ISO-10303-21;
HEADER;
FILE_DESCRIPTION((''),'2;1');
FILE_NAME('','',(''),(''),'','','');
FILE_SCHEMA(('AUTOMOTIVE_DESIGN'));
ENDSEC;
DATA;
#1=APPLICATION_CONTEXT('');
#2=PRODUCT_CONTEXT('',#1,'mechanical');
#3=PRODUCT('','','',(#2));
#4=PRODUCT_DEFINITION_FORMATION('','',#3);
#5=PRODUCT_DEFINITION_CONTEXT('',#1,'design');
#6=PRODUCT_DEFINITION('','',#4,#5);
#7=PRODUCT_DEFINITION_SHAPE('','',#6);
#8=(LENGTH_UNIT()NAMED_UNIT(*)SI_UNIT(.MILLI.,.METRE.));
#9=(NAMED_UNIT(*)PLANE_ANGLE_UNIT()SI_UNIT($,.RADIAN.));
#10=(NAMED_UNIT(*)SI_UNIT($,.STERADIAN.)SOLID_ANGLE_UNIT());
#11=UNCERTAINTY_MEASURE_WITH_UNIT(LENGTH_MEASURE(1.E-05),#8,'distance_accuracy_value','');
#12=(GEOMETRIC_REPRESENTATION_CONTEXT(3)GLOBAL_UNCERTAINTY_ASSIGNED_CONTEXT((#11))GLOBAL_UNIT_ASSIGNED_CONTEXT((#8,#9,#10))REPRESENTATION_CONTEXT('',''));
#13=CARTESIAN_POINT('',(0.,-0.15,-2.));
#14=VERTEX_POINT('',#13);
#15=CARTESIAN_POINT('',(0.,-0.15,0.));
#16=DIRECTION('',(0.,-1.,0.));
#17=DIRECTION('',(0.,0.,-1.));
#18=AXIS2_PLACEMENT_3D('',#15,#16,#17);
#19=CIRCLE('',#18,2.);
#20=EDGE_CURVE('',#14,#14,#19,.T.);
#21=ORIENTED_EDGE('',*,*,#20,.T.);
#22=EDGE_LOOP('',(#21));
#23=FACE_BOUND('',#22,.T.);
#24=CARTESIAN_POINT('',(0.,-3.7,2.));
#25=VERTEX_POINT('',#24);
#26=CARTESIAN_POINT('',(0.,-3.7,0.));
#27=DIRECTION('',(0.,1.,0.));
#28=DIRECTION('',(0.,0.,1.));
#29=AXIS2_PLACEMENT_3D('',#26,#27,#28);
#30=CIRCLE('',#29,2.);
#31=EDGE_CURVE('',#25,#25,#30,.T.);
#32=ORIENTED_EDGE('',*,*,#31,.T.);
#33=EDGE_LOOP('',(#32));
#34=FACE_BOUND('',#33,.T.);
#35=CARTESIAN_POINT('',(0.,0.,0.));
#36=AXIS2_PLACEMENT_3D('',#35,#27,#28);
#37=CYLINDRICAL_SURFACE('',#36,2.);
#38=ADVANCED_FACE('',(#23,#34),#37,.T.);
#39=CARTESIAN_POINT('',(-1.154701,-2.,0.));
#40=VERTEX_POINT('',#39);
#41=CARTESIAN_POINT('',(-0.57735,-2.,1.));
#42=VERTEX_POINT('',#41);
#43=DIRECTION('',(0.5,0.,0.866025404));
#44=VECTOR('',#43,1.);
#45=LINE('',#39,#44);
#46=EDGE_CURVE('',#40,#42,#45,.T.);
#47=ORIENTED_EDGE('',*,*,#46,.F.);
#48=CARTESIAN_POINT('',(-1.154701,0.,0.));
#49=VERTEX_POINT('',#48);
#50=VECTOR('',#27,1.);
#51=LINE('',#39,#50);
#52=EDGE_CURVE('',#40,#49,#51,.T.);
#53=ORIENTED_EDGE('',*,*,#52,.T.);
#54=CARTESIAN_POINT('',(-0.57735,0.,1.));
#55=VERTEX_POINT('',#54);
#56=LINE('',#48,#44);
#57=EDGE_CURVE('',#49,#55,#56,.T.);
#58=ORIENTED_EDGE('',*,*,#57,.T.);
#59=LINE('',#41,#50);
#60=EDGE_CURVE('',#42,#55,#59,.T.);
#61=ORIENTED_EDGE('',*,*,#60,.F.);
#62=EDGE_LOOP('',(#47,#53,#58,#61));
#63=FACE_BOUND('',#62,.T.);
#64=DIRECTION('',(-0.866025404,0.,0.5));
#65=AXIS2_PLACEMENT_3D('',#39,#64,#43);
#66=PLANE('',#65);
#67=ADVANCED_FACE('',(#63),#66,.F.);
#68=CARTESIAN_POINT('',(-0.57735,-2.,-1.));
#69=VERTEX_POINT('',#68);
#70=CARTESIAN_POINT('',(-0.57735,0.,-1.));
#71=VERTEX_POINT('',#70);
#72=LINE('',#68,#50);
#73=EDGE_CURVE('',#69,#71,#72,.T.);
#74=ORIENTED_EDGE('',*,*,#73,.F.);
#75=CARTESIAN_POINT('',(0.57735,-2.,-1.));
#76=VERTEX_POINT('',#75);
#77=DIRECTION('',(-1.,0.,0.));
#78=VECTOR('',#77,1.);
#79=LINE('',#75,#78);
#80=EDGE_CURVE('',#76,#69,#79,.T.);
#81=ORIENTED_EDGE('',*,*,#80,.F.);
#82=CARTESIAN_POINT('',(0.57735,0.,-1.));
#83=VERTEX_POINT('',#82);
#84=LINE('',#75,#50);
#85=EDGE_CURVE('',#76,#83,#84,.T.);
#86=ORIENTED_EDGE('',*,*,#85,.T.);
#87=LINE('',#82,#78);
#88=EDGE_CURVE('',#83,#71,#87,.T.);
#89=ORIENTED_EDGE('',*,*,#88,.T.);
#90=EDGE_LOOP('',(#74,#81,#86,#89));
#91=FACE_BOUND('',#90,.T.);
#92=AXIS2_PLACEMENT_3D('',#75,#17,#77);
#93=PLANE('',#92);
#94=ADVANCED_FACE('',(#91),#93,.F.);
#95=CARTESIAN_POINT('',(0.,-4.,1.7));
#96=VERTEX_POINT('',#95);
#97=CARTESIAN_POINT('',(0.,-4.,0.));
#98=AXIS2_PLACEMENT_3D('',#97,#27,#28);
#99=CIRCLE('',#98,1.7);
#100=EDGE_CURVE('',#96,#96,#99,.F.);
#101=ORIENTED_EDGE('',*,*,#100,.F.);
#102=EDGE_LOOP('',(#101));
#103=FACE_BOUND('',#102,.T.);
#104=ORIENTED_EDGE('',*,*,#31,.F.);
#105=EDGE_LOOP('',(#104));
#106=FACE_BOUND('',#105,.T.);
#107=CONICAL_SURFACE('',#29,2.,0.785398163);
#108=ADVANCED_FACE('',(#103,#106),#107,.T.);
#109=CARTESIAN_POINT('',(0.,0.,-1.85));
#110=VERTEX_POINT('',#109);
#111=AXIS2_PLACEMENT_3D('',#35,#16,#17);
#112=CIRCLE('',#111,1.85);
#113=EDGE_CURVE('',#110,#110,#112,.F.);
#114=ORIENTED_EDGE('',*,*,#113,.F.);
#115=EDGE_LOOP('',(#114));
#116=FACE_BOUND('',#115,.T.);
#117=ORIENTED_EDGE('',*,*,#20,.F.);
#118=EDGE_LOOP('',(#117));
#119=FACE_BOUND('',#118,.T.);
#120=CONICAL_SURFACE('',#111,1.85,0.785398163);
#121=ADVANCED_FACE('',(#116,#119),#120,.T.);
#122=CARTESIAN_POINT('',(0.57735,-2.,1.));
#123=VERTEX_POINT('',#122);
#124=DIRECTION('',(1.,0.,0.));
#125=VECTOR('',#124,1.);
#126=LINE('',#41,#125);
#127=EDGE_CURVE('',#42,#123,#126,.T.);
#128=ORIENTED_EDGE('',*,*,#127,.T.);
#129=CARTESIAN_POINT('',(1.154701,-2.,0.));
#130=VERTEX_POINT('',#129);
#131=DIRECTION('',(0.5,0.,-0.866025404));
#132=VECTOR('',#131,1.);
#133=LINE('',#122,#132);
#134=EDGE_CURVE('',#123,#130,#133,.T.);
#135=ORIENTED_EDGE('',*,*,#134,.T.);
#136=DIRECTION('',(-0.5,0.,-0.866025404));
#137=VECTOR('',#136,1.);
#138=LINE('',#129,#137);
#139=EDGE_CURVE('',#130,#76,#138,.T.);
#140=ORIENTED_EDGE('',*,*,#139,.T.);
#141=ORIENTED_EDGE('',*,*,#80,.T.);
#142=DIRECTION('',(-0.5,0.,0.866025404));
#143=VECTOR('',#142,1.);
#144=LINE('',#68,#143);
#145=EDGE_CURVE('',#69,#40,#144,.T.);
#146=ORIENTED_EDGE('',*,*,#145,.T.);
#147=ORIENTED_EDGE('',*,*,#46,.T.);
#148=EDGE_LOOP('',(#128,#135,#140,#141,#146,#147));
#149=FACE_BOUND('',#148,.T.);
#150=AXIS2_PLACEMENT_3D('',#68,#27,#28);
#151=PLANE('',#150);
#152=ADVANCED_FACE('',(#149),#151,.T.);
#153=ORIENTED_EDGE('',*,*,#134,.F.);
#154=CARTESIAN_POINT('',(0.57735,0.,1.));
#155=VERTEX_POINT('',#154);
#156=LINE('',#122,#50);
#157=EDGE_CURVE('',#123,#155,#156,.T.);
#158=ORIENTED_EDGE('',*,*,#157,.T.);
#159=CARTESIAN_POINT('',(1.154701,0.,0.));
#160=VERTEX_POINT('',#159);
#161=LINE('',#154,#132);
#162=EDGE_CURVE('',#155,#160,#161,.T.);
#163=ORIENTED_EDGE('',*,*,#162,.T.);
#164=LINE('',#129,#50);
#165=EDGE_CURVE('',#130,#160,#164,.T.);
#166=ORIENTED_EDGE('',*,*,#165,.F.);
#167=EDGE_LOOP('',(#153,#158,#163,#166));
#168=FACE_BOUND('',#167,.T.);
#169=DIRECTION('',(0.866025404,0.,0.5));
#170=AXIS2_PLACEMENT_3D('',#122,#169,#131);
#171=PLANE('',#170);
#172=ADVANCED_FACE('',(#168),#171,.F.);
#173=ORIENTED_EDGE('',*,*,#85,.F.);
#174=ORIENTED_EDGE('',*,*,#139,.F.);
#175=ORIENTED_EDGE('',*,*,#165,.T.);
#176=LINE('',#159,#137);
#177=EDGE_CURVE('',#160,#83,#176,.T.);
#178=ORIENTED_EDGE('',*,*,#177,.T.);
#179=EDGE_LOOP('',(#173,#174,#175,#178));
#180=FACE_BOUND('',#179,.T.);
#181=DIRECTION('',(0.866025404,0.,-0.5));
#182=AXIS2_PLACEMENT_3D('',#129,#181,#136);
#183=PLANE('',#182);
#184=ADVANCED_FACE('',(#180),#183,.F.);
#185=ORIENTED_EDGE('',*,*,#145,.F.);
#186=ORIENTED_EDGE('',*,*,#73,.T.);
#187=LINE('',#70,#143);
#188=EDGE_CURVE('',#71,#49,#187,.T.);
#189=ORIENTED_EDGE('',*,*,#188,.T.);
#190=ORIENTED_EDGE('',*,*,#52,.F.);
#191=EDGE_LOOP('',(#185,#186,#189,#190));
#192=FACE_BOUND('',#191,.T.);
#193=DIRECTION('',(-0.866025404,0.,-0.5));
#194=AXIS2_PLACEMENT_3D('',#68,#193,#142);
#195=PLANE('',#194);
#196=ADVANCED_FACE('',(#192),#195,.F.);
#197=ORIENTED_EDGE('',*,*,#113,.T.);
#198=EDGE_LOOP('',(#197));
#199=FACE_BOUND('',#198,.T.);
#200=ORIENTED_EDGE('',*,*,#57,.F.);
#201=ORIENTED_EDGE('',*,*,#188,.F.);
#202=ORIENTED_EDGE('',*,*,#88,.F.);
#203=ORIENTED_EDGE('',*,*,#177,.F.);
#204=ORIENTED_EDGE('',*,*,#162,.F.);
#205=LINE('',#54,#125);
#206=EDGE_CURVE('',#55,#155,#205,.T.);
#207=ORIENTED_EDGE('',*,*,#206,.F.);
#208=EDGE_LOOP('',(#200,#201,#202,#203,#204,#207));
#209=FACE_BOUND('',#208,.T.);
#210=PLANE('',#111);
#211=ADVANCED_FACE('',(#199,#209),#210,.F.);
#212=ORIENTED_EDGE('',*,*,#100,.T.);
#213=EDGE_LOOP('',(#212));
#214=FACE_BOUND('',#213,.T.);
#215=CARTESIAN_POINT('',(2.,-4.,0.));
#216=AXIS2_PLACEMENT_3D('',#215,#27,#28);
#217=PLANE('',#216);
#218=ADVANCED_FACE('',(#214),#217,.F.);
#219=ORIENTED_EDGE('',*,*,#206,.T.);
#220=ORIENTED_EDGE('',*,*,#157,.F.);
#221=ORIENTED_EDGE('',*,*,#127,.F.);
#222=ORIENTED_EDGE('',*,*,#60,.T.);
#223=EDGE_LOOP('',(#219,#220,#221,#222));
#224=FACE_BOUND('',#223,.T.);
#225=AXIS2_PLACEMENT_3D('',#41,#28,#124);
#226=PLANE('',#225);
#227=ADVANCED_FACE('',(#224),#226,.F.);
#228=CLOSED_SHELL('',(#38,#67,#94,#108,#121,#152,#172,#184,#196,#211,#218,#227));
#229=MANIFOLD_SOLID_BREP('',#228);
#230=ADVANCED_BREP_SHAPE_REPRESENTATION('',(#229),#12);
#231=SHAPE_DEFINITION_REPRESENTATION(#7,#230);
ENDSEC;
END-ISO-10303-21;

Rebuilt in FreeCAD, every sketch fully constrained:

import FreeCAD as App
import Part
import Sketcher

V = App.Vector
Q = App.Units.Quantity


def edges_at(feature, points):
    """Names of the edges that pass closest to the given points."""
    edges = feature.Shape.Edges
    near = lambda p: min(range(len(edges)), key=lambda i: edges[i].distToShape(Part.Vertex(*p))[0])
    return sorted({f"Edge{near(p) + 1}" for p in points})

doc = App.newDocument("Part")
body = doc.addObject("PartDesign::Body", "Body")

sketch1 = doc.addObject("Sketcher::SketchObject", "Sketch")
body.addObject(sketch1)
sketch1.AttachmentSupport = (doc.XY_Plane, [""])
sketch1.MapMode = "FlatFace"
sketch1.addGeometry(Part.LineSegment(V(0, 0, 0), V(0, -4, 0)), False)
sketch1.addGeometry(Part.LineSegment(V(0, -4, 0), V(2, -4, 0)), False)
sketch1.addGeometry(Part.LineSegment(V(2, -4, 0), V(2, 0, 0)), False)
sketch1.addGeometry(Part.LineSegment(V(2, 0, 0), V(0, 0, 0)), False)
sketch1.addConstraint(Sketcher.Constraint("Coincident", 0, 2, 1, 1))
sketch1.addConstraint(Sketcher.Constraint("Coincident", 1, 2, 2, 1))
sketch1.addConstraint(Sketcher.Constraint("Coincident", 2, 2, 3, 1))
sketch1.addConstraint(Sketcher.Constraint("Coincident", 3, 2, 0, 1))
sketch1.addConstraint(Sketcher.Constraint("Vertical", 0))
sketch1.addConstraint(Sketcher.Constraint("Horizontal", 1))
sketch1.addConstraint(Sketcher.Constraint("Vertical", 2))
sketch1.addConstraint(Sketcher.Constraint("Horizontal", 3))
sketch1.addConstraint(Sketcher.Constraint("Coincident", 3, 2, -1, 1))
sketch1.addConstraint(Sketcher.Constraint("DistanceX", 1, 1, 1, 2, 2.0))
sketch1.addConstraint(Sketcher.Constraint("DistanceY", 0, 2, 0, 1, 4.0))
revolution = doc.addObject("PartDesign::Revolution", "Revolution")
body.addObject(revolution)
revolution.Profile = sketch1
revolution.ReferenceAxis = (sketch1, ["V_Axis"])
revolution.Angle = 360

sketch2 = doc.addObject("Sketcher::SketchObject", "Sketch001")
body.addObject(sketch2)
sketch2.AttachmentSupport = (doc.XZ_Plane, [""])
sketch2.MapMode = "FlatFace"
sketch2.addGeometry(Part.LineSegment(V(-0.6, -1, 0), V(-1.2, 0, 0)), False)
sketch2.addGeometry(Part.LineSegment(V(-1.2, 0, 0), V(-0.6, 1, 0)), False)
sketch2.addGeometry(Part.LineSegment(V(-0.6, 1, 0), V(0.6, 1, 0)), False)
sketch2.addGeometry(Part.LineSegment(V(0.6, 1, 0), V(1.2, 0, 0)), False)
sketch2.addGeometry(Part.LineSegment(V(1.2, 0, 0), V(0.6, -1, 0)), False)
sketch2.addGeometry(Part.LineSegment(V(0.6, -1, 0), V(-0.6, -1, 0)), False)
sketch2.addConstraint(Sketcher.Constraint("Coincident", 0, 2, 1, 1))
sketch2.addConstraint(Sketcher.Constraint("Coincident", 1, 2, 2, 1))
sketch2.addConstraint(Sketcher.Constraint("Coincident", 2, 2, 3, 1))
sketch2.addConstraint(Sketcher.Constraint("Coincident", 3, 2, 4, 1))
sketch2.addConstraint(Sketcher.Constraint("Coincident", 4, 2, 5, 1))
sketch2.addConstraint(Sketcher.Constraint("Coincident", 5, 2, 0, 1))
sketch2.addConstraint(Sketcher.Constraint("Horizontal", 2))
sketch2.addConstraint(Sketcher.Constraint("Horizontal", 5))
sketch2.addConstraint(Sketcher.Constraint("Symmetric", 0, 2, 3, 2, -1, 1))
sketch2.addConstraint(Sketcher.Constraint("Symmetric", 1, 2, 4, 2, -1, 1))
sketch2.addConstraint(Sketcher.Constraint("PointOnObject", 0, 2, -1))
sketch2.addConstraint(Sketcher.Constraint("Parallel", 0, 3))
sketch2.addConstraint(Sketcher.Constraint("Vertical", 2, 2, 4, 2))
sketch2.addConstraint(Sketcher.Constraint("Angle", 0, Q("120 deg")))
sketch2.addConstraint(Sketcher.Constraint("DistanceY", -1, 1, 1, 2, 1.0))
sketch2.addConstraint(Sketcher.Constraint("DistanceX", 2, 1, 2, 2, 1.154701))
pocket1 = doc.addObject("PartDesign::Pocket", "Pocket")
body.addObject(pocket1)
pocket1.Profile = sketch2
pocket1.Length = 2
pocket1.Reversed = True
doc.recompute()

chamfer = doc.addObject("PartDesign::Chamfer", "Chamfer")
body.addObject(chamfer)
chamfer.Base = (pocket1, edges_at(pocket1, [(-2, -4, 0)]))
chamfer.Size = 0.3
doc.recompute()

chamfer2 = doc.addObject("PartDesign::Chamfer", "Chamfer001")
body.addObject(chamfer2)
chamfer2.Base = (chamfer, edges_at(chamfer, [(-2, 0, 0)]))
chamfer2.Size = 0.15

doc.recompute()
